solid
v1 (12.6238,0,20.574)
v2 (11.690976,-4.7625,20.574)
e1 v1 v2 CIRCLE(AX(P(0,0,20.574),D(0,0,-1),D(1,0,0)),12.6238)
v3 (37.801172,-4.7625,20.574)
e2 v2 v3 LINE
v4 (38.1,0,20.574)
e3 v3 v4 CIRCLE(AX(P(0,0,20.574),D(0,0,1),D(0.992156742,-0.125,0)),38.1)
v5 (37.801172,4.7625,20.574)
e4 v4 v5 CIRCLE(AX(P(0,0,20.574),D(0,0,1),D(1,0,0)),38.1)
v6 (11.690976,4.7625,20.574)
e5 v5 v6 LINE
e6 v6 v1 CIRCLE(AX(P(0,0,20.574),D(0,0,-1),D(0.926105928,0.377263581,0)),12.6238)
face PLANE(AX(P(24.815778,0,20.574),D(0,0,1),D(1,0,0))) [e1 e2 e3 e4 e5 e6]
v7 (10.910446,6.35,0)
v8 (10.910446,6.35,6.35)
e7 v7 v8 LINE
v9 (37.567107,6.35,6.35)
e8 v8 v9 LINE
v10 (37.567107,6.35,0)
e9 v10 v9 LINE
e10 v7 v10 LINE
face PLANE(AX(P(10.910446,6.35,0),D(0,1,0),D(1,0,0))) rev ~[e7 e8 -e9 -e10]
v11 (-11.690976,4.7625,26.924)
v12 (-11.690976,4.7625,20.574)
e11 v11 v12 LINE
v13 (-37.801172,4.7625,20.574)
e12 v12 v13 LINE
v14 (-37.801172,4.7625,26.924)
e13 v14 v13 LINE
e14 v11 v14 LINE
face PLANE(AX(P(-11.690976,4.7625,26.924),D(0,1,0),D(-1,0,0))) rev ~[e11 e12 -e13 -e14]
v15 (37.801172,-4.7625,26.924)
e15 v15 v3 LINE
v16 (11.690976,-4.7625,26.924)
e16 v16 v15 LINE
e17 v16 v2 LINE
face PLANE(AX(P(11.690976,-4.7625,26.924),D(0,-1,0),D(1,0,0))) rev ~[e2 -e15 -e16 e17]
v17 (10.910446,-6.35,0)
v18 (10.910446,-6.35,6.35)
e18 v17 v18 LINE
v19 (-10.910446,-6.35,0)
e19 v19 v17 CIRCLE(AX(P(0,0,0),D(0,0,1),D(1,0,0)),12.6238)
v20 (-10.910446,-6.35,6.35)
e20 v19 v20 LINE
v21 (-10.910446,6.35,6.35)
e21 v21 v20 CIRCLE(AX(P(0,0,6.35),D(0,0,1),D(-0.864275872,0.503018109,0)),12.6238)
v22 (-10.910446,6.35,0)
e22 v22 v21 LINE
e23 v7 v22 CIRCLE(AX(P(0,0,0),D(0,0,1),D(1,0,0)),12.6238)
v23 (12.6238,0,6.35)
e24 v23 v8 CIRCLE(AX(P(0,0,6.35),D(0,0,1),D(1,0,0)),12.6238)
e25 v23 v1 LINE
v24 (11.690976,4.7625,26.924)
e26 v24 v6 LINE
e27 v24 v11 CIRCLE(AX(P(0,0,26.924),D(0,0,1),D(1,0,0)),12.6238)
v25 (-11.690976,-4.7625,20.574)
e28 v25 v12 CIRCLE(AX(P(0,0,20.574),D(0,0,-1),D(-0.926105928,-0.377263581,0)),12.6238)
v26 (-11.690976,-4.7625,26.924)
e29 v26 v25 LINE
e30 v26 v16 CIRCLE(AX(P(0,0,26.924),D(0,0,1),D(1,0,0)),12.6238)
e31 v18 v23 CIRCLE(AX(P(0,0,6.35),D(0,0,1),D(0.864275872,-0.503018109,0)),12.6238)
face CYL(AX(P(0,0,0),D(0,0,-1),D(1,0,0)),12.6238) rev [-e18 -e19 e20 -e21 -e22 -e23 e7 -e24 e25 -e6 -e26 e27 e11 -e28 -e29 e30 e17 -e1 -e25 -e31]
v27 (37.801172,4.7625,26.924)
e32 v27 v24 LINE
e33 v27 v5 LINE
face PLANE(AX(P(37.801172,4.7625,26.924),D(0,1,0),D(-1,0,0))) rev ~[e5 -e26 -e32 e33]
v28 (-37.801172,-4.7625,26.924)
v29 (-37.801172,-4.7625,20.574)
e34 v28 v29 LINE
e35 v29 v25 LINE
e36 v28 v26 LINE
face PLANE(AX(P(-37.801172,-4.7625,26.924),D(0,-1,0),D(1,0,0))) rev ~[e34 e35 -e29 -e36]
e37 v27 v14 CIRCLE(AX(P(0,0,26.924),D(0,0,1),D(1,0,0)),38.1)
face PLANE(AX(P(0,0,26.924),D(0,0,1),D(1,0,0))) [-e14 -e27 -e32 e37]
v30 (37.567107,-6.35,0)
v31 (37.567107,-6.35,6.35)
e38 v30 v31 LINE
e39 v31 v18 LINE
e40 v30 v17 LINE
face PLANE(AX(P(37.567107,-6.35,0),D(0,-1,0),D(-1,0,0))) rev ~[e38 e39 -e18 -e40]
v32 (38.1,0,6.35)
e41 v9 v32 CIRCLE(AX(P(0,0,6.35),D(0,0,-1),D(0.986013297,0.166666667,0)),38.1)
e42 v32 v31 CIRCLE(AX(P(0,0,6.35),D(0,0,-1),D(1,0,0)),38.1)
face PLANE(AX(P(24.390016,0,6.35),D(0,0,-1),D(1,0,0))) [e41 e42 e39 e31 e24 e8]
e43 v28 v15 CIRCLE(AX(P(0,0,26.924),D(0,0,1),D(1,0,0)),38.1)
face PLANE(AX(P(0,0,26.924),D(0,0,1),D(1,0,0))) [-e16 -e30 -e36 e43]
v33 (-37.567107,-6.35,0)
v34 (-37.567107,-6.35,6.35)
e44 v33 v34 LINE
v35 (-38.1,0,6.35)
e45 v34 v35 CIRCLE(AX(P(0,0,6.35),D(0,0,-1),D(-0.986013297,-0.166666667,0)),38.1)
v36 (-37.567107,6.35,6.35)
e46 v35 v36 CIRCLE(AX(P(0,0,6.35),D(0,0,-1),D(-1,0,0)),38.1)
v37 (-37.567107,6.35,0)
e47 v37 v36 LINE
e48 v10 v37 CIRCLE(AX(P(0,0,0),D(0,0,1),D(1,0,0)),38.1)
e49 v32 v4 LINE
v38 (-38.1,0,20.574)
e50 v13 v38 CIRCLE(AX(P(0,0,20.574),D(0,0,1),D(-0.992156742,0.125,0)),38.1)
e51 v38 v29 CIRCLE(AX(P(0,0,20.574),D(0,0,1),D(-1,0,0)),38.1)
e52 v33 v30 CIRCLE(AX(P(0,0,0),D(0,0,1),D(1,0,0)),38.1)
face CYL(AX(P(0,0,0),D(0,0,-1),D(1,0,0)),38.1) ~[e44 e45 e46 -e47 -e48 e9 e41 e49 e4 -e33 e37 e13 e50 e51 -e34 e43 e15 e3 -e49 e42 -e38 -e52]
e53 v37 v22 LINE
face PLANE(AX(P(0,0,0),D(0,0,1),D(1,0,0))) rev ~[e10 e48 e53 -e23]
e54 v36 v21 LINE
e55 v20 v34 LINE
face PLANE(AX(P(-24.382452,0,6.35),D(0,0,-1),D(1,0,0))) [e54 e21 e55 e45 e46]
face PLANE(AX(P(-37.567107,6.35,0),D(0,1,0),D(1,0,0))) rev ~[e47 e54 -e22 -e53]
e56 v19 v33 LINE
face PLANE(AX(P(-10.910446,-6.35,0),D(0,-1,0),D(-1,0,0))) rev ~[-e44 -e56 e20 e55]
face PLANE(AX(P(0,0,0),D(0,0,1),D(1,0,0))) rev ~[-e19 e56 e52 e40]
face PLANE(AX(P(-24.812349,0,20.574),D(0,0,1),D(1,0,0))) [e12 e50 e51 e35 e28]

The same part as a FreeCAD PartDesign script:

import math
import FreeCAD as App
import Part
import Sketcher

V = App.Vector
Q = App.Units.Quantity

doc = App.newDocument("Part")
body = doc.addObject("PartDesign::Body", "Body")

sketch1 = body.newObject("Sketcher::SketchObject", "Sketch")
sketch1.AttachmentSupport = (doc.getObject("XY_Plane"), [""])
sketch1.MapMode = "FlatFace"
sketch1.addGeometry([
    Part.Circle(V(0, 0, 0), V(0, 0, 1), 38),
    Part.Circle(V(0, 0, 0), V(0, 0, 1), 13),
], False)
sketch1.addConstraint([
    Sketcher.Constraint("Coincident", 0, 3, -1, 1),
    Sketcher.Constraint("Coincident", 1, 3, -1, 1),
    Sketcher.Constraint("Diameter", 0, Q("3 in")),
    Sketcher.Constraint("Diameter", 1, Q("0.994 in")),
])
pad1 = body.newObject("PartDesign::Pad", "Pad")
pad1.Profile = sketch1
pad1.Length = Q("1.06 in")

sketch2 = body.newObject("Sketcher::SketchObject", "Sketch001")
sketch2.AttachmentSupport = (doc.getObject("XY_Plane"), [""])
sketch2.MapMode = "FlatFace"
sketch2.AttachmentOffset = App.Placement(V(0, 0, 1.06 * 25.4), App.Rotation())
sketch2.addGeometry([
    Part.LineSegment(V(-11.7, 4.8, 0), V(-37.8, 4.8, 0)),
    Part.ArcOfCircle(Part.Circle(V(0, 0, 0), V(0, 0, 1), 38.1), math.radians(172.82), math.radians(180)),
    Part.ArcOfCircle(Part.Circle(V(0, 0, 0), V(0, 0, 1), 38.1), math.radians(180), math.radians(187.18)),
    Part.LineSegment(V(-37.8, -4.8, 0), V(-11.7, -4.8, 0)),
    Part.ArcOfCircle(Part.Circle(V(0, 0, 0), V(0, 0, 1), 12.6), math.radians(158), math.radians(202)),
    Part.ArcOfCircle(Part.Circle(V(0, 0, 0), V(0, 0, 1), 38.1), math.radians(0), math.radians(7.18)),
    Part.LineSegment(V(37.8, 4.8, 0), V(11.7, 4.8, 0)),
    Part.ArcOfCircle(Part.Circle(V(0, 0, 0), V(0, 0, 1), 12.6), math.radians(0), math.radians(22)),
    Part.ArcOfCircle(Part.Circle(V(0, 0, 0), V(0, 0, 1), 12.6), math.radians(-22), math.radians(0)),
    Part.LineSegment(V(11.7, -4.8, 0), V(37.8, -4.8, 0)),
    Part.ArcOfCircle(Part.Circle(V(0, 0, 0), V(0, 0, 1), 38.1), math.radians(-7.18), math.radians(0)),
], False)
sketch2.addConstraint([
    Sketcher.Constraint("Coincident", 0, 2, 1, 1),
    Sketcher.Constraint("Tangent", 1, 2, 2, 1),
    Sketcher.Constraint("Coincident", 2, 2, 3, 1),
    Sketcher.Constraint("Coincident", 3, 2, 4, 2),
    Sketcher.Constraint("Coincident", 4, 1, 0, 1),
    Sketcher.Constraint("Coincident", 5, 2, 6, 1),
    Sketcher.Constraint("Coincident", 6, 2, 7, 2),
    Sketcher.Constraint("Tangent", 7, 1, 8, 2),
    Sketcher.Constraint("Coincident", 8, 1, 9, 1),
    Sketcher.Constraint("Coincident", 9, 2, 10, 1),
    Sketcher.Constraint("Tangent", 10, 2, 5, 1),
    Sketcher.Constraint("Horizontal", 0),
    Sketcher.Constraint("Horizontal", 3),
    Sketcher.Constraint("Horizontal", 6),
    Sketcher.Constraint("Horizontal", 9),
    Sketcher.Constraint("Coincident", 1, 3, -1, 1),
    Sketcher.Constraint("Coincident", 4, 3, -1, 1),
    Sketcher.Constraint("Coincident", 5, 3, -1, 1),
    Sketcher.Constraint("Coincident", 7, 3, -1, 1),
    Sketcher.Constraint("Equal", 1, 2),
    Sketcher.Constraint("Equal", 2, 5),
    Sketcher.Constraint("Equal", 4, 7),
    Sketcher.Constraint("Equal", 7, 8),
    Sketcher.Constraint("Equal", 5, 10),
    Sketcher.Constraint("PointOnObject", 1, 2, -1),
    Sketcher.Constraint("PointOnObject", 7, 1, -1),
    Sketcher.Constraint("PointOnObject", 10, 2, -1),
    Sketcher.Constraint("Horizontal", 4, 1, 5, 2),
    Sketcher.Constraint("Horizontal", 3, 2, 8, 1),
    Sketcher.Constraint("Vertical", 0, 2, 2, 2),
    Sketcher.Constraint("Radius", 1, Q("1.5 in")),
    Sketcher.Constraint("Radius", 4, Q("0.497 in")),
    Sketcher.Constraint("DistanceY", -1, 1, 0, 2, Q("0.1875 in")),
])
pocket1 = body.newObject("PartDesign::Pocket", "Pocket")
pocket1.Profile = sketch2
pocket1.Length = Q("0.25 in")

sketch3 = body.newObject("Sketcher::SketchObject", "Sketch002")
sketch3.AttachmentSupport = (doc.getObject("XY_Plane"), [""])
sketch3.MapMode = "FlatFace"
sketch3.addGeometry([
    Part.LineSegment(V(-11, -6, 0), V(-38, -6, 0)),
    Part.ArcOfCircle(Part.Circle(V(0, 0, 0), V(0, 0, 1), 38), math.radians(-180), math.radians(-170.41)),
    Part.ArcOfCircle(Part.Circle(V(0, 0, 0), V(0, 0, 1), 38), math.radians(170.41), math.radians(180)),
    Part.LineSegment(V(-38, 6, 0), V(-11, 6, 0)),
    Part.ArcOfCircle(Part.Circle(V(0, 0, 0), V(0, 0, 1), 13), math.radians(150), math.radians(210)),
    Part.ArcOfCircle(Part.Circle(V(0, 0, 0), V(0, 0, 1), 38), math.radians(-9.59), math.radians(0)),
    Part.LineSegment(V(38, -6, 0), V(11, -6, 0)),
    Part.ArcOfCircle(Part.Circle(V(0, 0, 0), V(0, 0, 1), 13), math.radians(-30), math.radians(0)),
    Part.ArcOfCircle(Part.Circle(V(0, 0, 0), V(0, 0, 1), 13), math.radians(0), math.radians(30)),
    Part.LineSegment(V(11, 6, 0), V(38, 6, 0)),
    Part.ArcOfCircle(Part.Circle(V(0, 0, 0), V(0, 0, 1), 38), math.radians(0), math.radians(9.59)),
], False)
sketch3.addConstraint([
    Sketcher.Constraint("Coincident", 0, 2, 1, 2),
    Sketcher.Constraint("Tangent", 1, 1, 2, 2),
    Sketcher.Constraint("Coincident", 2, 1, 3, 1),
    Sketcher.Constraint("Coincident", 3, 2, 4, 1),
    Sketcher.Constraint("Coincident", 4, 2, 0, 1),
    Sketcher.Constraint("Coincident", 5, 1, 6, 1),
    Sketcher.Constraint("Coincident", 6, 2, 7, 1),
    Sketcher.Constraint("Tangent", 7, 2, 8, 1),
    Sketcher.Constraint("Coincident", 8, 2, 9, 1),
    Sketcher.Constraint("Coincident", 9, 2, 10, 2),
    Sketcher.Constraint("Tangent", 10, 1, 5, 2),
    Sketcher.Constraint("Horizontal", 0),
    Sketcher.Constraint("Horizontal", 3),
    Sketcher.Constraint("Horizontal", 6),
    Sketcher.Constraint("Horizontal", 9),
    Sketcher.Constraint("Coincident", 1, 3, -1, 1),
    Sketcher.Constraint("Coincident", 4, 3, -1, 1),
    Sketcher.Constraint("Coincident", 5, 3, -1, 1),
    Sketcher.Constraint("Coincident", 7, 3, -1, 1),
    Sketcher.Constraint("Equal", 1, 2),
    Sketcher.Constraint("Equal", 2, 5),
    Sketcher.Constraint("Equal", 4, 7),
    Sketcher.Constraint("Equal", 7, 8),
    Sketcher.Constraint("Equal", 5, 10),
    Sketcher.Constraint("PointOnObject", 1, 1, -1),
    Sketcher.Constraint("PointOnObject", 7, 2, -1),
    Sketcher.Constraint("PointOnObject", 10, 1, -1),
    Sketcher.Constraint("Horizontal", 4, 2, 5, 1),
    Sketcher.Constraint("Horizontal", 3, 2, 8, 2),
    Sketcher.Constraint("Vertical", 0, 2, 2, 1),
    Sketcher.Constraint("Radius", 1, Q("1.5 in")),
    Sketcher.Constraint("Radius", 4, Q("0.497 in")),
    Sketcher.Constraint("DistanceY", 0, 2, 2, 1, Q("0.5 in")),
])
pocket2 = body.newObject("PartDesign::Pocket", "Pocket001")
pocket2.Profile = sketch3
pocket2.Length = Q("0.25 in")
pocket2.Reversed = True

doc.recompute()
